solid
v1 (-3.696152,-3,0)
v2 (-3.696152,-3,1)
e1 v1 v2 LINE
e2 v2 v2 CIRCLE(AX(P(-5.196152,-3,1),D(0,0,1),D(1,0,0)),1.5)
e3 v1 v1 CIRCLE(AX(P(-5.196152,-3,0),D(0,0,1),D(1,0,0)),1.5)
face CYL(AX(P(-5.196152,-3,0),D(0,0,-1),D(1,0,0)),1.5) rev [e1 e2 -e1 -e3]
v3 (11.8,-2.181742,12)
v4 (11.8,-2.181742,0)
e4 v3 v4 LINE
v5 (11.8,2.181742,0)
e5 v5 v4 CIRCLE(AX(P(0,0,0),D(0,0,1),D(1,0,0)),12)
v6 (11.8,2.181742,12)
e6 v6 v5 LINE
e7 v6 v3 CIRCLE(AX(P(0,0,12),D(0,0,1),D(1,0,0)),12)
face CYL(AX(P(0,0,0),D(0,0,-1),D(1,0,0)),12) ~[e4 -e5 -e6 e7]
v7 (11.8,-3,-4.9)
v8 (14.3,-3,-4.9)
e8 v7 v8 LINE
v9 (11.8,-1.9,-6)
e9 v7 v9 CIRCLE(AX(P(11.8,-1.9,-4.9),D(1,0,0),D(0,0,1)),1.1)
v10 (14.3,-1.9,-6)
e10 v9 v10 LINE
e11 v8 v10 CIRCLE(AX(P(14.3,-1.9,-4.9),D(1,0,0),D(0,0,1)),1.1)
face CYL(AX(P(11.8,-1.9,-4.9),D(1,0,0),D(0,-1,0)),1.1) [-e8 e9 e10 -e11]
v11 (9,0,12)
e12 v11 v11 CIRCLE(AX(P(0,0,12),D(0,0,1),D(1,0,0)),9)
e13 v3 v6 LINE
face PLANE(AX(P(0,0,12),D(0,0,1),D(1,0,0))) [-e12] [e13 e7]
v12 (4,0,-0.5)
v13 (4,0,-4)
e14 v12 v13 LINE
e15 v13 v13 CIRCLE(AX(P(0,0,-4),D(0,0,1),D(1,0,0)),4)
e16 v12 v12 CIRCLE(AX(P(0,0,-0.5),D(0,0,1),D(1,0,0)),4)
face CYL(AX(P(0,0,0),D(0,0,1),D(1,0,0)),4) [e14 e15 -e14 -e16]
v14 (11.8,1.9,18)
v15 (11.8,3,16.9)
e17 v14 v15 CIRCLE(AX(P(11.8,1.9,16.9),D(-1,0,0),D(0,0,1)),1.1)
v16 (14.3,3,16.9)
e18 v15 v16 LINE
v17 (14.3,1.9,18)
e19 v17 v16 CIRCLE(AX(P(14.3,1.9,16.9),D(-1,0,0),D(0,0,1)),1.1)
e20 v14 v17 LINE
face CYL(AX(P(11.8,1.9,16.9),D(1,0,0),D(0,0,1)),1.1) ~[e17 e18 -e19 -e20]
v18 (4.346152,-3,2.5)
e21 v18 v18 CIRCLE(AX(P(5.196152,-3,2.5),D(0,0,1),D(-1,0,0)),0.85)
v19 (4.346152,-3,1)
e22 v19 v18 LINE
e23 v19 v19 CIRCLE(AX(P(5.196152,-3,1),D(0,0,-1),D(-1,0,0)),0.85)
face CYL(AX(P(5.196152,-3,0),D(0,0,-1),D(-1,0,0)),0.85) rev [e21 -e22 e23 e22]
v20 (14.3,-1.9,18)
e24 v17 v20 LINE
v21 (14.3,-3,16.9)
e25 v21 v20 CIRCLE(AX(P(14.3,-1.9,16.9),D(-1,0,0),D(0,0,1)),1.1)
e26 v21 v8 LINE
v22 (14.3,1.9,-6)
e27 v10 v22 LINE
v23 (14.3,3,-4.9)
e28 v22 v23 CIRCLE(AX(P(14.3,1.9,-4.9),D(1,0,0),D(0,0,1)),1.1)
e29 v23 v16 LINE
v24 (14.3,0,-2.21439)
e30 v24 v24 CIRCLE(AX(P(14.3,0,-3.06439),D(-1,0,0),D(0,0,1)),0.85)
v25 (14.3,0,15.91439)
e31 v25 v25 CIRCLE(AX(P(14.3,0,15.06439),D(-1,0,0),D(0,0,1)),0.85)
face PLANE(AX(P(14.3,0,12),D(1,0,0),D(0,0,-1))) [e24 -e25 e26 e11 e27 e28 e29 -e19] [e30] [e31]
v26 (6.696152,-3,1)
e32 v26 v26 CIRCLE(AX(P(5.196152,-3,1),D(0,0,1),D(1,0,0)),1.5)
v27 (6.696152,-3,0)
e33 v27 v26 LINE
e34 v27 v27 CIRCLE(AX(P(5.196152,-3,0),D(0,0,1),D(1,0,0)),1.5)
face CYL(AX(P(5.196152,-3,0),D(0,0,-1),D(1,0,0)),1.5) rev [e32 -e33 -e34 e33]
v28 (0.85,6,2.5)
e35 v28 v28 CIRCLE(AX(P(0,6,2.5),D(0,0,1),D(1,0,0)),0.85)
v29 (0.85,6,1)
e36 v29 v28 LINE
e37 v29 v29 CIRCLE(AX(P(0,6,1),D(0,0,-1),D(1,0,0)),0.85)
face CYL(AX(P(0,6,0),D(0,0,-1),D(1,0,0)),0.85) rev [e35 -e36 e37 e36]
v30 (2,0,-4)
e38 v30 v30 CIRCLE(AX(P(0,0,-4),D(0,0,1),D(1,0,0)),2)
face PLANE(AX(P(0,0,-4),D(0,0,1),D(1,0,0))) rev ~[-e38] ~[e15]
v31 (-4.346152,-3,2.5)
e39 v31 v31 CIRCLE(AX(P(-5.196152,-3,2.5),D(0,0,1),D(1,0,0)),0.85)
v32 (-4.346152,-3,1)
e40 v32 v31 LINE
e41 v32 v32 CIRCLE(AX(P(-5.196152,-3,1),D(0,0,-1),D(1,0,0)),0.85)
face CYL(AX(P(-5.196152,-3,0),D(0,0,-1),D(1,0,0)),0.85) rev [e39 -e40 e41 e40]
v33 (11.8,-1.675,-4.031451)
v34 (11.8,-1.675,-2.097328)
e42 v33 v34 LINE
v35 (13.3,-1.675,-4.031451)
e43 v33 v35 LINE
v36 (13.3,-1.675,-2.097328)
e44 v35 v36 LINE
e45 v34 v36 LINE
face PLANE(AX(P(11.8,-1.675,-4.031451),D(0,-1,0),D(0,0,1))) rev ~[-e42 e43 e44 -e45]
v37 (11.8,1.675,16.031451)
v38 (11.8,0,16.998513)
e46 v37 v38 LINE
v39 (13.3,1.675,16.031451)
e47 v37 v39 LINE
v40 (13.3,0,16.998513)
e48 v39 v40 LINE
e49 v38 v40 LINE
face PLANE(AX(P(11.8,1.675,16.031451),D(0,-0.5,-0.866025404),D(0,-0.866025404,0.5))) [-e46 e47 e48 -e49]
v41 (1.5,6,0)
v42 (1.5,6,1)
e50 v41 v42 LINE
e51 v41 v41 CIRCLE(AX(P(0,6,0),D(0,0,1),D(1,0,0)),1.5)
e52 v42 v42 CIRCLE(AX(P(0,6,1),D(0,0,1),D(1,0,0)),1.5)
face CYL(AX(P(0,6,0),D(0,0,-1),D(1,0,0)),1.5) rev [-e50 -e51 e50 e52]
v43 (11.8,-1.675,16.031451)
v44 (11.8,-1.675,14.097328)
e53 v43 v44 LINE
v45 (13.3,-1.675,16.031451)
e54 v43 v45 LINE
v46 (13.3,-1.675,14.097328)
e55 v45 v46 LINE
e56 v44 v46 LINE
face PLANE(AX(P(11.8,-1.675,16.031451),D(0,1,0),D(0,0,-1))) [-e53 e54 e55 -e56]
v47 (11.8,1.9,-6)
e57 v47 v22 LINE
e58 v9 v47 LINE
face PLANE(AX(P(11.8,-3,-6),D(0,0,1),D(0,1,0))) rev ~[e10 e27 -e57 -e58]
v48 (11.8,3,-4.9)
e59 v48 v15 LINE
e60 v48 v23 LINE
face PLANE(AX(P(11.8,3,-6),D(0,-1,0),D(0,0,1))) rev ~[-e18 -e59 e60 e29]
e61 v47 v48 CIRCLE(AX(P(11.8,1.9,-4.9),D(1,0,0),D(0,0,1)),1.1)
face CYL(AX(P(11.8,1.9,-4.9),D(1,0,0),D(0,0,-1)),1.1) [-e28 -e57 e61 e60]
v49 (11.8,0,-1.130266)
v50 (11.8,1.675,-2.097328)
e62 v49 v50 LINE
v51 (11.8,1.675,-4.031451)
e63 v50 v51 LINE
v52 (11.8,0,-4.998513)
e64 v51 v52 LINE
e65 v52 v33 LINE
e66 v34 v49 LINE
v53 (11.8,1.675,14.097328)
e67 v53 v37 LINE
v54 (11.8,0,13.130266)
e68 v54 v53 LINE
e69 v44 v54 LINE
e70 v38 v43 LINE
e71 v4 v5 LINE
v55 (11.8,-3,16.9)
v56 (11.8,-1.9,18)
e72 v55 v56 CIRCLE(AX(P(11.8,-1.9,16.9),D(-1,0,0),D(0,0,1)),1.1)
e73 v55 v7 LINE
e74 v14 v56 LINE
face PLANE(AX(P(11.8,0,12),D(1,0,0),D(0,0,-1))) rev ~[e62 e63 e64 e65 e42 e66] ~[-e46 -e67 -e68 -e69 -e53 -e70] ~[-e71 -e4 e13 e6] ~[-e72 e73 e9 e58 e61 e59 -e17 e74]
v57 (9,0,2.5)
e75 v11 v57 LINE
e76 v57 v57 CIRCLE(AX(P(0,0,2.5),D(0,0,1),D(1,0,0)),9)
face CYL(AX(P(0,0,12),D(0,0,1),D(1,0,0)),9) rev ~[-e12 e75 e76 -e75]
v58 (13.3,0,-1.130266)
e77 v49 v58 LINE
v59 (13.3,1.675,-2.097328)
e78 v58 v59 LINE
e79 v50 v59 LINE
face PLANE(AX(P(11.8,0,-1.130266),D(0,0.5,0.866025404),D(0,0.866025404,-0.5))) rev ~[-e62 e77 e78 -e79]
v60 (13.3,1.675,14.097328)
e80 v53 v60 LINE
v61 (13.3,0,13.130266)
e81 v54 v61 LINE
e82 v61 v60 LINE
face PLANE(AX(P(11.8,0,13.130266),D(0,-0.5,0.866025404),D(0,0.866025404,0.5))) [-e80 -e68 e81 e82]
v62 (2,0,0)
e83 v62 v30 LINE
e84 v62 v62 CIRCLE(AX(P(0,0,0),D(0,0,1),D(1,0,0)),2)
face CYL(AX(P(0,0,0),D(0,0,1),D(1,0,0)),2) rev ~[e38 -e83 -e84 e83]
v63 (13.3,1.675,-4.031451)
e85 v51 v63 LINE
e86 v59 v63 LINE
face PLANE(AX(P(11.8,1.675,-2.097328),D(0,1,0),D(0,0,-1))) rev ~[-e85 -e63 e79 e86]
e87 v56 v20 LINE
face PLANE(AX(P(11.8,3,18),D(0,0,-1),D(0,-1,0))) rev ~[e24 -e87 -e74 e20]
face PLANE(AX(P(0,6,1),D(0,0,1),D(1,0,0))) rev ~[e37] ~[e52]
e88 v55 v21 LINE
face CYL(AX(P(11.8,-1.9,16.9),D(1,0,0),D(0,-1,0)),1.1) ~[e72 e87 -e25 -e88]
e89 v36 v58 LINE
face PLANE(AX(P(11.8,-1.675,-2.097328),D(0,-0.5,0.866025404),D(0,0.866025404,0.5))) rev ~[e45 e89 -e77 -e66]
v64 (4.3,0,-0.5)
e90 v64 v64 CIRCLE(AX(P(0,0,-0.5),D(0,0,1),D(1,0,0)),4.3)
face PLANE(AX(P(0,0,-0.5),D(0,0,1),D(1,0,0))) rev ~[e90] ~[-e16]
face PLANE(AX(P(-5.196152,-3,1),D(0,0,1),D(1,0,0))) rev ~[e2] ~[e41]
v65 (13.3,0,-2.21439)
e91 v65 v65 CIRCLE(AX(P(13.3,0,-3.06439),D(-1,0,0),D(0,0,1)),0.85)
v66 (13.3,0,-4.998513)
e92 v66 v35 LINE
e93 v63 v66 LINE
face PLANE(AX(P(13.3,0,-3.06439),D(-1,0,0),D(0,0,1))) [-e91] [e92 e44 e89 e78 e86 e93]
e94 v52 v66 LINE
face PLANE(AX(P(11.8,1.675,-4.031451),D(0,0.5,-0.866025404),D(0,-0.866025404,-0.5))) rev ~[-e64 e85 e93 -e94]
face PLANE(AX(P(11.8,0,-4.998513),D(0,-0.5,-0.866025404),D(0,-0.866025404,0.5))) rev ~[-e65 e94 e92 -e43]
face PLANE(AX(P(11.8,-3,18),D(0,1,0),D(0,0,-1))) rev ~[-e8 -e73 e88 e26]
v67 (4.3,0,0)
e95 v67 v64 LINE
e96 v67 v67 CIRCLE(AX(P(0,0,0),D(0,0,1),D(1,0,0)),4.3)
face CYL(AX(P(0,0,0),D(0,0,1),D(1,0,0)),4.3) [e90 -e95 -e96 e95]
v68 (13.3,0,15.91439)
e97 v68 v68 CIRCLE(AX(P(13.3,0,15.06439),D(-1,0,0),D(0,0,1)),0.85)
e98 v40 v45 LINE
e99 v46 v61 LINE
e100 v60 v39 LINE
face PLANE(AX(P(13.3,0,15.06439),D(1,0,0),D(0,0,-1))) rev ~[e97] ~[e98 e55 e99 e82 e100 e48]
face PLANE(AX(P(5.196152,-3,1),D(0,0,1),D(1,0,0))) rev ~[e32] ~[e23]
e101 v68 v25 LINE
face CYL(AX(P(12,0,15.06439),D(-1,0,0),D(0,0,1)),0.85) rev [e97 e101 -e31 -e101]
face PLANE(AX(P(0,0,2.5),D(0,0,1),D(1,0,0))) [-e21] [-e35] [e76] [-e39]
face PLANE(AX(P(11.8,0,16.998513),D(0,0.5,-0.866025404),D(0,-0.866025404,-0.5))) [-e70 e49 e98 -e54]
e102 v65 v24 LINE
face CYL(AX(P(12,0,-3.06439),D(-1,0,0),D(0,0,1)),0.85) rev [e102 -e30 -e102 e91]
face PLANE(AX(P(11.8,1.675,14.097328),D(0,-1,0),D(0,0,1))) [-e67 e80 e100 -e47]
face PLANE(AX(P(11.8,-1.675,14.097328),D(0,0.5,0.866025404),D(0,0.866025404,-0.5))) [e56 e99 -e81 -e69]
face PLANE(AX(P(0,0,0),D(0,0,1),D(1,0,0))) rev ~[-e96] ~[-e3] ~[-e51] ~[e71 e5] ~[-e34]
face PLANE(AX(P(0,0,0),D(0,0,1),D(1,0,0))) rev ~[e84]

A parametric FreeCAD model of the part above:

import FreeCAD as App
import Part
import Sketcher
Q = App.Units.Quantity


def edges_at(feature, points):
    """Names of the edges that pass closest to the given points."""
    edges = feature.Shape.Edges
    near = lambda p: min(range(len(edges)), key=lambda i: edges[i].distToShape(Part.Vertex(*p))[0])
    return sorted({f"Edge{near(p) + 1}" for p in points})

doc = App.newDocument("Part")
body = doc.addObject("PartDesign::Body", "Body")

# Sketch on XY plane
sketch1 = doc.addObject("Sketcher::SketchObject", "Sketch")
body.addObject(sketch1)
sketch1.AttachmentSupport = (doc.XY_Plane, [""])
sketch1.MapMode = "FlatFace"
sketch1.addGeometry(Part.Circle(App.Vector(0, 0, 0), App.Vector(0, 0, 1), 12), False)
sketch1.addConstraint([
    Sketcher.Constraint("Coincident", 0, 3, -1, 1),
    Sketcher.Constraint("Diameter", 0, 24.0),
])
pad1 = doc.addObject("PartDesign::Pad", "Pad")
body.addObject(pad1)
pad1.Profile = sketch1
pad1.Length = 12

# Sketch on XY plane
sketch2 = doc.addObject("Sketcher::SketchObject", "Sketch001")
body.addObject(sketch2)
sketch2.AttachmentSupport = (doc.XY_Plane, [""])
sketch2.MapMode = "FlatFace"
sketch2.addGeometry([
    Part.Circle(App.Vector(0, 6, 0), App.Vector(0, 0, 1), 0.85),
    Part.Circle(App.Vector(-5.196152, -3, 0), App.Vector(0, 0, 1), 0.85),
    Part.Circle(App.Vector(5.196152, -3, 0), App.Vector(0, 0, 1), 0.85),
], False)
sketch2.addConstraint([
    Sketcher.Constraint("Equal", 0, 1),
    Sketcher.Constraint("Equal", 1, 2),
    Sketcher.Constraint("Symmetric", 1, 3, 2, 3, -2),
    Sketcher.Constraint("PointOnObject", 0, 3, -2),
    Sketcher.Constraint("Diameter", 0, 1.7),
    Sketcher.Constraint("DistanceY", -1, 1, 0, 3, 6.0),
    Sketcher.Constraint("DistanceY", 1, 3, -1, 1, 3.0),
    Sketcher.Constraint("DistanceX", 1, 3, -1, 1, 5.196152),
])
pocket1 = doc.addObject("PartDesign::Pocket", "Pocket")
body.addObject(pocket1)
pocket1.Profile = sketch2
pocket1.Length = 2.5
pocket1.Reversed = True

# Sketch on XY plane
sketch3 = doc.addObject("Sketcher::SketchObject", "Sketch002")
body.addObject(sketch3)
sketch3.AttachmentSupport = (doc.XY_Plane, [""])
sketch3.MapMode = "FlatFace"
sketch3.addGeometry(Part.Circle(App.Vector(0, 0, 0), App.Vector(0, 0, 1), 4), False)
sketch3.addConstraint([
    Sketcher.Constraint("Coincident", 0, 3, -1, 1),
    Sketcher.Constraint("Diameter", 0, 8.0),
])
pad2 = doc.addObject("PartDesign::Pad", "Pad001")
body.addObject(pad2)
pad2.Profile = sketch3
pad2.Length = 4
pad2.Reversed = True

# Sketch on XY plane
sketch4 = doc.addObject("Sketcher::SketchObject", "Sketch003")
body.addObject(sketch4)
sketch4.AttachmentSupport = (doc.XY_Plane, [""])
sketch4.MapMode = "FlatFace"
sketch4.addGeometry(Part.Circle(App.Vector(0, 0, 0), App.Vector(0, 0, 1), 4.3), False)
sketch4.addConstraint([
    Sketcher.Constraint("Coincident", 0, 3, -1, 1),
    Sketcher.Constraint("Diameter", 0, 8.6),
])
pad3 = doc.addObject("PartDesign::Pad", "Pad002")
body.addObject(pad3)
pad3.Profile = sketch4
pad3.Length = 0.5
pad3.Reversed = True

# Sketch on XY plane
sketch5 = doc.addObject("Sketcher::SketchObject", "Sketch004")
body.addObject(sketch5)
sketch5.AttachmentSupport = (doc.XY_Plane, [""])
sketch5.MapMode = "FlatFace"
sketch5.addGeometry(Part.Circle(App.Vector(0, 0, 0), App.Vector(0, 0, 1), 2), False)
sketch5.addConstraint([
    Sketcher.Constraint("Coincident", 0, 3, -1, 1),
    Sketcher.Constraint("Diameter", 0, 4.0),
])
pocket2 = doc.addObject("PartDesign::Pocket", "Pocket001")
body.addObject(pocket2)
pocket2.Profile = sketch5
pocket2.Length = 4

# Sketch on XY plane
sketch6 = doc.addObject("Sketcher::SketchObject", "Sketch005")
body.addObject(sketch6)
sketch6.AttachmentSupport = (doc.XY_Plane, [""])
sketch6.MapMode = "FlatFace"
sketch6.addGeometry([
    Part.Circle(App.Vector(-5.196152, -3, 0), App.Vector(0, 0, 1), 1.5),
    Part.Circle(App.Vector(5.196152, -3, 0), App.Vector(0, 0, 1), 1.5),
    Part.Circle(App.Vector(0, 6, 0), App.Vector(0, 0, 1), 1.5),
], False)
sketch6.addConstraint([
    Sketcher.Constraint("Equal", 0, 1),
    Sketcher.Constraint("Equal", 1, 2),
    Sketcher.Constraint("Symmetric", 0, 3, 1, 3, -2),
    Sketcher.Constraint("PointOnObject", 2, 3, -2),
    Sketcher.Constraint("Diameter", 0, 3.0),
    Sketcher.Constraint("DistanceY", 0, 3, -1, 1, 3.0),
    Sketcher.Constraint("DistanceY", -1, 1, 2, 3, 6.0),
    Sketcher.Constraint("DistanceX", 0, 3, -1, 1, 5.196152),
])
pocket3 = doc.addObject("PartDesign::Pocket", "Pocket002")
body.addObject(pocket3)
pocket3.Profile = sketch6
pocket3.Length = 1
pocket3.Reversed = True

# Sketch on XY plane
sketch7 = doc.addObject("Sketcher::SketchObject", "Sketch006")
body.addObject(sketch7)
sketch7.AttachmentSupport = (doc.XY_Plane, [""])
sketch7.MapMode = "FlatFace"
sketch7.AttachmentOffset = App.Placement(App.Vector(0, 0, 12), App.Rotation())
sketch7.addGeometry(Part.Circle(App.Vector(0, 0, 0), App.Vector(0, 0, 1), 9), False)
sketch7.addConstraint([
    Sketcher.Constraint("Coincident", 0, 3, -1, 1),
    Sketcher.Constraint("Diameter", 0, 18.0),
])
pocket4 = doc.addObject("PartDesign::Pocket", "Pocket003")
body.addObject(pocket4)
pocket4.Profile = sketch7
pocket4.Length = 9.5

# Sketch on YZ plane
sketch8 = doc.addObject("Sketcher::SketchObject", "Sketch007")
body.addObject(sketch8)
sketch8.AttachmentSupport = (doc.YZ_Plane, [""])
sketch8.MapMode = "FlatFace"
sketch8.AttachmentOffset = App.Placement(App.Vector(0, 0, 14), App.Rotation())
sketch8.addGeometry([
    Part.LineSegment(App.Vector(-3, 18, 0), App.Vector(-3, -6, 0)),
    Part.LineSegment(App.Vector(-3, -6, 0), App.Vector(3, -6, 0)),
    Part.LineSegment(App.Vector(3, -6, 0), App.Vector(3, 18, 0)),
    Part.LineSegment(App.Vector(3, 18, 0), App.Vector(-3, 18, 0)),
], False)
sketch8.addConstraint([
    Sketcher.Constraint("Coincident", 0, 2, 1, 1),
    Sketcher.Constraint("Coincident", 1, 2, 2, 1),
    Sketcher.Constraint("Coincident", 2, 2, 3, 1),
    Sketcher.Constraint("Coincident", 3, 2, 0, 1),
    Sketcher.Constraint("Vertical", 0),
    Sketcher.Constraint("Horizontal", 1),
    Sketcher.Constraint("Vertical", 2),
    Sketcher.Constraint("Horizontal", 3),
    Sketcher.Constraint("DistanceX", 1, 1, 1, 2, 6.0),
    Sketcher.Constraint("DistanceY", 0, 2, 0, 1, 24.0),
    Sketcher.Constraint("DistanceX", 0, 2, -1, 1, 3.0),
    Sketcher.Constraint("DistanceY", 0, 2, -1, 1, 6.0),
])
pad4 = doc.addObject("PartDesign::Pad", "Pad003")
body.addObject(pad4)
pad4.Profile = sketch8
pad4.Type = "TwoLengths"
pad4.Length = 0.3
pad4.Length2 = 2.2

# Sketch on YZ plane
sketch9 = doc.addObject("Sketcher::SketchObject", "Sketch008")
body.addObject(sketch9)
sketch9.AttachmentSupport = (doc.YZ_Plane, [""])
sketch9.MapMode = "FlatFace"
sketch9.AttachmentOffset = App.Placement(App.Vector(0, 0, 11.8), App.Rotation())
sketch9.addGeometry([
    Part.LineSegment(App.Vector(0, 13.130266, 0), App.Vector(1.675, 14.097328, 0)),  # 0
    Part.LineSegment(App.Vector(1.675, 14.097328, 0), App.Vector(1.675, 16.031451, 0)),  # 1
    Part.LineSegment(App.Vector(1.675, 16.031451, 0), App.Vector(0, 16.998513, 0)),  # 2
    Part.LineSegment(App.Vector(0, 16.998513, 0), App.Vector(-1.675, 16.031451, 0)),  # 3
    Part.LineSegment(App.Vector(-1.675, 16.031451, 0), App.Vector(-1.675, 14.097328, 0)),  # 4
    Part.LineSegment(App.Vector(-1.675, 14.097328, 0), App.Vector(0, 13.130266, 0)),  # 5
    Part.LineSegment(App.Vector(1.675, -2.097328, 0), App.Vector(0, -1.130266, 0)),  # 6
    Part.LineSegment(App.Vector(0, -1.130266, 0), App.Vector(-1.675, -2.097328, 0)),  # 7
    Part.LineSegment(App.Vector(-1.675, -2.097328, 0), App.Vector(-1.675, -4.031451, 0)),  # 8
    Part.LineSegment(App.Vector(-1.675, -4.031451, 0), App.Vector(0, -4.998513, 0)),  # 9
    Part.LineSegment(App.Vector(0, -4.998513, 0), App.Vector(1.675, -4.031451, 0)),  # 10
    Part.LineSegment(App.Vector(1.675, -4.031451, 0), App.Vector(1.675, -2.097328, 0)),  # 11
], False)
sketch9.addConstraint([
    Sketcher.Constraint("Coincident", 0, 2, 1, 1),
    Sketcher.Constraint("Coincident", 1, 2, 2, 1),
    Sketcher.Constraint("Coincident", 2, 2, 3, 1),
    Sketcher.Constraint("Coincident", 3, 2, 4, 1),
    Sketcher.Constraint("Coincident", 4, 2, 5, 1),
    Sketcher.Constraint("Coincident", 5, 2, 0, 1),
    Sketcher.Constraint("Coincident", 6, 2, 7, 1),
    Sketcher.Constraint("Coincident", 7, 2, 8, 1),
    Sketcher.Constraint("Coincident", 8, 2, 9, 1),
    Sketcher.Constraint("Coincident", 9, 2, 10, 1),
    Sketcher.Constraint("Coincident", 10, 2, 11, 1),
    Sketcher.Constraint("Coincident", 11, 2, 6, 1),
    Sketcher.Constraint("Vertical", 1),
    Sketcher.Constraint("Vertical", 4),
    Sketcher.Constraint("Vertical", 8),
    Sketcher.Constraint("Vertical", 11),
    Sketcher.Constraint("Symmetric", 1, 2, 3, 2, -2),
    Sketcher.Constraint("Symmetric", 8, 2, 10, 2, -2),
    Sketcher.Constraint("PointOnObject", 2, 2, -2),
    Sketcher.Constraint("PointOnObject", 5, 2, -2),
    Sketcher.Constraint("PointOnObject", 6, 2, -2),
    Sketcher.Constraint("PointOnObject", 9, 2, -2),
    Sketcher.Constraint("Parallel", 0, 3),
    Sketcher.Constraint("Parallel", 2, 5),
    Sketcher.Constraint("Parallel", 5, 6),
    Sketcher.Constraint("Parallel", 3, 7),
    Sketcher.Constraint("Parallel", 6, 9),
    Sketcher.Constraint("Vertical", 4, 2, 7, 2),
    Sketcher.Constraint("Equal", 4, 8),
    Sketcher.Constraint("Angle", 0, Q("30 deg")),
    Sketcher.Constraint("DistanceX", 3, 2, 1, 2, 3.35),
    Sketcher.Constraint("DistanceY", 1, 1, 1, 2, 1.934123),
    Sketcher.Constraint("DistanceY", -1, 1, 1, 2, 16.031451),
    Sketcher.Constraint("DistanceY", 8, 2, -1, 1, 4.031451),
])
pocket5 = doc.addObject("PartDesign::Pocket", "Pocket004")
body.addObject(pocket5)
pocket5.Profile = sketch9
pocket5.Length = 1.5
pocket5.Reversed = True

# Sketch on YZ plane
sketch10 = doc.addObject("Sketcher::SketchObject", "Sketch009")
body.addObject(sketch10)
sketch10.AttachmentSupport = (doc.YZ_Plane, [""])
sketch10.MapMode = "FlatFace"
sketch10.AttachmentOffset = App.Placement(App.Vector(0, 0, 14), App.Rotation())
sketch10.addGeometry([
    Part.Circle(App.Vector(0, -3.06439, 0), App.Vector(0, 0, 1), 0.85),
    Part.Circle(App.Vector(0, 15.06439, 0), App.Vector(0, 0, 1), 0.85),
], False)
sketch10.addConstraint([
    Sketcher.Constraint("Equal", 0, 1),
    Sketcher.Constraint("PointOnObject", 0, 3, -2),
    Sketcher.Constraint("PointOnObject", 1, 3, -2),
    Sketcher.Constraint("Diameter", 0, 1.7),
    Sketcher.Constraint("DistanceY", 0, 3, -1, 1, 3.06439),
    Sketcher.Constraint("DistanceY", -1, 1, 1, 3, 15.06439),
])
pocket6 = doc.addObject("PartDesign::Pocket", "Pocket005")
body.addObject(pocket6)
pocket6.Profile = sketch10
pocket6.Type = "TwoLengths"
pocket6.Length = 1
pocket6.Length2 = 2
pocket6.Reversed = True
doc.recompute()

fillet = doc.addObject("PartDesign::Fillet", "Fillet")
body.addObject(fillet)
fillet.Base = (pocket6, edges_at(pocket6, [
    (13.05, 3, 18),
    (13.05, -3, 18),
    (13.05, 3, -6),
    (13.05, -3, -6),
]))
fillet.Radius = 1.1

doc.recompute()
